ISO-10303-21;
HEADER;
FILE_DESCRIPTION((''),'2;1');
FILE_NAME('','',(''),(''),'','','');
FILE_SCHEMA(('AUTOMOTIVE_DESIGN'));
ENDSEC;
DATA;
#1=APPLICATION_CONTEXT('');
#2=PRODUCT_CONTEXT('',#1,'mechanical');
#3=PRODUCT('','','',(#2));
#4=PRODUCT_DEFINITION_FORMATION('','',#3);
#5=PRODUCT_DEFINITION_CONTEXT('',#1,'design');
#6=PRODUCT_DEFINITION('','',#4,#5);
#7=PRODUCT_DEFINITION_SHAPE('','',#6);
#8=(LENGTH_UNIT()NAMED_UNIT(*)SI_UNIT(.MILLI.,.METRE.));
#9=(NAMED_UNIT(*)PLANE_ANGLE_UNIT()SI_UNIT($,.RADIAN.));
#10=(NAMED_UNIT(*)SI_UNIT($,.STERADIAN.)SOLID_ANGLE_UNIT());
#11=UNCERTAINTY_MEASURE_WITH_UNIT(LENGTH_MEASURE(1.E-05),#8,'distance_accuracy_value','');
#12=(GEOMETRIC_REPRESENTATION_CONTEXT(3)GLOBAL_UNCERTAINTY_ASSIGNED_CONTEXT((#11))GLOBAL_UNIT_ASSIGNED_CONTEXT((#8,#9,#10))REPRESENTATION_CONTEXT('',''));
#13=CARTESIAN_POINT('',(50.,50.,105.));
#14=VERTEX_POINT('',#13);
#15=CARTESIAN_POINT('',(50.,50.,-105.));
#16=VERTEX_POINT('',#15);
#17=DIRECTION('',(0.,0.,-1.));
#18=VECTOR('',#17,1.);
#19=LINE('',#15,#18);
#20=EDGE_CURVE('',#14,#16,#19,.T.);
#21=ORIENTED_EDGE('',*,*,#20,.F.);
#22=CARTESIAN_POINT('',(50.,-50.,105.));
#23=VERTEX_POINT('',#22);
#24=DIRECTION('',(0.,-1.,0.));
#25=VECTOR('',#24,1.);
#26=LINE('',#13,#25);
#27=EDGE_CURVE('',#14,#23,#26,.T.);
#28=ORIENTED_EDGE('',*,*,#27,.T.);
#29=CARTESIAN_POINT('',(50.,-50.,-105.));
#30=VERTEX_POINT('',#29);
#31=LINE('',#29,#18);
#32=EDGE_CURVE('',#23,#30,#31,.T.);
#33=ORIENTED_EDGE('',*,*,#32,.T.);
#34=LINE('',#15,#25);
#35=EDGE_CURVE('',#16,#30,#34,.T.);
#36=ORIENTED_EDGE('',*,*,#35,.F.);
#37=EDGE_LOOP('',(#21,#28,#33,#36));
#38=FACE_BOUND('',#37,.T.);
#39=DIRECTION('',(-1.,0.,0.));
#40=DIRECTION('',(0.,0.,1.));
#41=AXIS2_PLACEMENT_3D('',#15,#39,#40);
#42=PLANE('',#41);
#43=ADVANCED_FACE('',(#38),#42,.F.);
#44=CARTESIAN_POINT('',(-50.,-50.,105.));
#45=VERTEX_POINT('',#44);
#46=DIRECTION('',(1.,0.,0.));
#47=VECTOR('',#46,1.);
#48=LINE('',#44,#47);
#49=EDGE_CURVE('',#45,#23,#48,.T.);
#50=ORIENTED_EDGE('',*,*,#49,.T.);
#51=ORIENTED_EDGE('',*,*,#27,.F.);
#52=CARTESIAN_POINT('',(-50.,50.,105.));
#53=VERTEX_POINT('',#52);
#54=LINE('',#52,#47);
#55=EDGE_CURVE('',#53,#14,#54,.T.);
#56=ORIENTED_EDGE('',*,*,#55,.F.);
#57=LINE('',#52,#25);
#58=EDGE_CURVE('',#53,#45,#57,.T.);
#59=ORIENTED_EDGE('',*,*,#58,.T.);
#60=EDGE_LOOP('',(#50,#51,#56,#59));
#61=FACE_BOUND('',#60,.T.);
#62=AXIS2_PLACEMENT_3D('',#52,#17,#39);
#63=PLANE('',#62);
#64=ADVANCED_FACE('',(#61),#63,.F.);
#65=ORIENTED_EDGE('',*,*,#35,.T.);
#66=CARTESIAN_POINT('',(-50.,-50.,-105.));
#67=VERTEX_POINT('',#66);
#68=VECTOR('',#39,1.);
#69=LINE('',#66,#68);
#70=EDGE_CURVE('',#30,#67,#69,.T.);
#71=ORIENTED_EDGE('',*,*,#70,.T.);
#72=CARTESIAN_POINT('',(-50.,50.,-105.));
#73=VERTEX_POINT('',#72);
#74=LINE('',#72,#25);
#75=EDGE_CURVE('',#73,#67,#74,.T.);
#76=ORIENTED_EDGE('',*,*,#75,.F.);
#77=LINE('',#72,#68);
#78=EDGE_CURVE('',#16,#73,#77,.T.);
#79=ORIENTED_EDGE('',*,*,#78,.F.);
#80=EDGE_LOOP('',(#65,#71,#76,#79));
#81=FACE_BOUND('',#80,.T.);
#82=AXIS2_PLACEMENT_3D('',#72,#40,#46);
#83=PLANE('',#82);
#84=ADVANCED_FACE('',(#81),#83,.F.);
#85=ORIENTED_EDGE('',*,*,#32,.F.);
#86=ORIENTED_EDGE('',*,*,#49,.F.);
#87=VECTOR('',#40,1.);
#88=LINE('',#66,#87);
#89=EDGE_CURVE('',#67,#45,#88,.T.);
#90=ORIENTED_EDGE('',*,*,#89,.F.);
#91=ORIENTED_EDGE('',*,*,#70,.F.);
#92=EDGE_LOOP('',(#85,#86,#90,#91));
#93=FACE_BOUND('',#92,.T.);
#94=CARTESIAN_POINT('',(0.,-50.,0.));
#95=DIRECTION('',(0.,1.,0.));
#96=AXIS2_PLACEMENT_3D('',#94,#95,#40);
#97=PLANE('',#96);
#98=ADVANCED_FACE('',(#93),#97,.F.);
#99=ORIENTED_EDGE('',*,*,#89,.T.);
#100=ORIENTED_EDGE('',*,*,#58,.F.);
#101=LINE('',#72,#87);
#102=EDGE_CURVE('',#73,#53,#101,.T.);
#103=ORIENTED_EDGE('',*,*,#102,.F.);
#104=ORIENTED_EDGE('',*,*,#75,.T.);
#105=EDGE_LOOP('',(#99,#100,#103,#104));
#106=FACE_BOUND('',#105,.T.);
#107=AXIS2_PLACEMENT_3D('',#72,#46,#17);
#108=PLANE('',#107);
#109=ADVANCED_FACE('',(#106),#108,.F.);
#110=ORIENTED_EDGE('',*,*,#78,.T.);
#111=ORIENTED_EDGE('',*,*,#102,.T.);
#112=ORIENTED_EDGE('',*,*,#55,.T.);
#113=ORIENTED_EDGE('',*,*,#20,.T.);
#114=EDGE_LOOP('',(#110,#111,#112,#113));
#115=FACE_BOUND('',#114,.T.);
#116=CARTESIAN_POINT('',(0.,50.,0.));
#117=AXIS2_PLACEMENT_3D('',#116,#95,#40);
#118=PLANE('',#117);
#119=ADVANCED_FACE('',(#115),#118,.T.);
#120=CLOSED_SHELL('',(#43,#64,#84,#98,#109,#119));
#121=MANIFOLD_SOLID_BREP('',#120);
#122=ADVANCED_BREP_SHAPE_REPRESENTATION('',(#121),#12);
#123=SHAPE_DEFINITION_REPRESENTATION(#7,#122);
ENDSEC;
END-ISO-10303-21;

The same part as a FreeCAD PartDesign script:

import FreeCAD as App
import Part
import Sketcher

doc = App.newDocument("Part")
body = doc.addObject("PartDesign::Body", "Body")

sketch1 = body.newObject("Sketcher::SketchObject", "Sketch")
sketch1.AttachmentSupport = (doc.getObject("XZ_Plane"), [""])
sketch1.MapMode = "FlatFace"
sketch1.addGeometry([
    Part.LineSegment(App.Vector(-50, -105, 0), App.Vector(-50, 105, 0)),
    Part.LineSegment(App.Vector(-50, 105, 0), App.Vector(50, 105, 0)),
    Part.LineSegment(App.Vector(50, 105, 0), App.Vector(50, -105, 0)),
    Part.LineSegment(App.Vector(50, -105, 0), App.Vector(-50, -105, 0)),
], False)
sketch1.addConstraint([
    Sketcher.Constraint("Coincident", 0, 2, 1, 1),
    Sketcher.Constraint("Coincident", 1, 2, 2, 1),
    Sketcher.Constraint("Coincident", 2, 2, 3, 1),
    Sketcher.Constraint("Coincident", 3, 2, 0, 1),
    Sketcher.Constraint("Vertical", 0),
    Sketcher.Constraint("Horizontal", 1),
    Sketcher.Constraint("Vertical", 2),
    Sketcher.Constraint("Horizontal", 3),
    Sketcher.Constraint("Symmetric", 0, 2, 2, 2, -1, 1),
    Sketcher.Constraint("DistanceX", 1, 1, 1, 2, 100.0),
    Sketcher.Constraint("DistanceY", 0, 1, 0, 2, 210.0),
])
pad1 = body.newObject("PartDesign::Pad", "Pad")
pad1.Profile = sketch1
pad1.Length = 100
pad1.Midplane = True

doc.recompute()
